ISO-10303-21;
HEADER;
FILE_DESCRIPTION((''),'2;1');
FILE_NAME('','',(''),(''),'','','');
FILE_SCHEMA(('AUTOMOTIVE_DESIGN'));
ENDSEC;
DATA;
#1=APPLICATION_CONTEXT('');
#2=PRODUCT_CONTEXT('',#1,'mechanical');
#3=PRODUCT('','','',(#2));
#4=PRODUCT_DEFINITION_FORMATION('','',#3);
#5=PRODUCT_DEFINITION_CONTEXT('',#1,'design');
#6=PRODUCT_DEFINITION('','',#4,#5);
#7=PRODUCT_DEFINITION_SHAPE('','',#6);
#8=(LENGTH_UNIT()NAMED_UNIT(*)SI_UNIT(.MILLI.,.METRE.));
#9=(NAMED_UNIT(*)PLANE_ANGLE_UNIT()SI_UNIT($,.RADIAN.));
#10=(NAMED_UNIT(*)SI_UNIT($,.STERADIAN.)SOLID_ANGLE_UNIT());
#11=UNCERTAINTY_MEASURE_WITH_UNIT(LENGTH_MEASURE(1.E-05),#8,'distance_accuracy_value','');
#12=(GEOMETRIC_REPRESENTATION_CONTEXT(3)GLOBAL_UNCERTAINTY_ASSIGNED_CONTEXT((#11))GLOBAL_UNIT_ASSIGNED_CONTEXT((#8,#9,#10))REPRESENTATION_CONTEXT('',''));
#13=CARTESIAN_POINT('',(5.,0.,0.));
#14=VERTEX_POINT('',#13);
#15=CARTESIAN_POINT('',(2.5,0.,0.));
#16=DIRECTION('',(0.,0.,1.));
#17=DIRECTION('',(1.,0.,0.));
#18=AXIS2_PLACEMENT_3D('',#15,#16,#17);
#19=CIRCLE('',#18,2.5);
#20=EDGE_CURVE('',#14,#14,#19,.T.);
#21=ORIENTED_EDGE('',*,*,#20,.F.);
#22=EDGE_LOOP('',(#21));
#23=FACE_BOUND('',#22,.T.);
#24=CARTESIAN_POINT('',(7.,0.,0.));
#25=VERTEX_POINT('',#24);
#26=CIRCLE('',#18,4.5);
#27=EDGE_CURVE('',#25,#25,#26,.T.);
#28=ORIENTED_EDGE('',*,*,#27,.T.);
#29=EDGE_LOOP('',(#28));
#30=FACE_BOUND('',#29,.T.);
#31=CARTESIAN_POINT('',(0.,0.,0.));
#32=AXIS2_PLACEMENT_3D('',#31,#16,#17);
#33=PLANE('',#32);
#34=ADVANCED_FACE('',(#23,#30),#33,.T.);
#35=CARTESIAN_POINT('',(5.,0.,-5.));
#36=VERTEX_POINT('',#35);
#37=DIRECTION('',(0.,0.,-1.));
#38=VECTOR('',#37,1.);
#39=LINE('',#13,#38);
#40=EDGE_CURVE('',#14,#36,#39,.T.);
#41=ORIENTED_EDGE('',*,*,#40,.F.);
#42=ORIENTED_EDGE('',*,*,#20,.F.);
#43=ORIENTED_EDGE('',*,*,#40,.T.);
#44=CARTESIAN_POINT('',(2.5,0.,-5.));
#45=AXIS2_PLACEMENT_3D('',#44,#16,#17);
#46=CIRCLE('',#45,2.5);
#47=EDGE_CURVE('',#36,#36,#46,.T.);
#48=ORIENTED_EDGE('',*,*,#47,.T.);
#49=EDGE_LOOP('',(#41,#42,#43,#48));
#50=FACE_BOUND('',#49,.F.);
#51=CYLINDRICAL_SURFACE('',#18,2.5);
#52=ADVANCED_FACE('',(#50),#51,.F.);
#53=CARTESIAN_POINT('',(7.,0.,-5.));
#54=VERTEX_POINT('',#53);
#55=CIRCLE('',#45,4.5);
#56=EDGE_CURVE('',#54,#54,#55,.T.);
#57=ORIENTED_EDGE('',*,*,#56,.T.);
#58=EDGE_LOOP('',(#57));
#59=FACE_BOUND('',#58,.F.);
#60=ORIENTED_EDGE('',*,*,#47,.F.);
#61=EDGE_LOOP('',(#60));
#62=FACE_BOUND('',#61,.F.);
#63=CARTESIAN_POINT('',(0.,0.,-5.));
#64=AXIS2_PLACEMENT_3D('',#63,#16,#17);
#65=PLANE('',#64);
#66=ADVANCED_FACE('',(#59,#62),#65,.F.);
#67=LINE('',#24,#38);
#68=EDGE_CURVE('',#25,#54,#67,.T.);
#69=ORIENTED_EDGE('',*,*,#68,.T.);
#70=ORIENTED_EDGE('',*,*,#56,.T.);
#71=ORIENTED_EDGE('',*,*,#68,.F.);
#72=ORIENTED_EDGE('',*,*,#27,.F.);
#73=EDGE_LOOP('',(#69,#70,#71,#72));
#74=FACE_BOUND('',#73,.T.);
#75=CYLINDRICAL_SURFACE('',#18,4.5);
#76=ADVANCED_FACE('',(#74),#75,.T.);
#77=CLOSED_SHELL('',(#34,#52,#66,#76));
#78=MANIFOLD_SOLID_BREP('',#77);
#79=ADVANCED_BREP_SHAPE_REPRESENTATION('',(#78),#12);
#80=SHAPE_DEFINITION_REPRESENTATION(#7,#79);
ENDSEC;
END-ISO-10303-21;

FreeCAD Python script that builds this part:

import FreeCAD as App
import Part
import Sketcher
from FreeCAD import Vector
Q = App.Units.Quantity

doc = App.newDocument("Part")
body = doc.addObject("PartDesign::Body", "Body")

sketch1 = body.newObject("Sketcher::SketchObject", "Sketch")
sketch1.AttachmentSupport = (doc.getObject("XY_Plane"), [""])
sketch1.MapMode = "FlatFace"
sketch1.addGeometry([
    Part.Circle(Vector(2.5, 0, 0), Vector(0, 0, 1), 4.5),
    Part.Circle(Vector(2.5, 0, 0), Vector(0, 0, 1), 2.5),
], False)
sketch1.addConstraint([
    Sketcher.Constraint("Coincident", 1, 3, 0, 3),
    Sketcher.Constraint("PointOnObject", 0, 3, -1),
    Sketcher.Constraint("Diameter", 0, Q("9 mm")),
    Sketcher.Constraint("Diameter", 1, Q("5 mm")),
    Sketcher.Constraint("DistanceX", -1, 1, 0, 3, Q("2.5 mm")),
])
pad1 = body.newObject("PartDesign::Pad", "Pad")
pad1.Profile = sketch1
pad1.Length = 5
pad1.Reversed = True

doc.recompute()
